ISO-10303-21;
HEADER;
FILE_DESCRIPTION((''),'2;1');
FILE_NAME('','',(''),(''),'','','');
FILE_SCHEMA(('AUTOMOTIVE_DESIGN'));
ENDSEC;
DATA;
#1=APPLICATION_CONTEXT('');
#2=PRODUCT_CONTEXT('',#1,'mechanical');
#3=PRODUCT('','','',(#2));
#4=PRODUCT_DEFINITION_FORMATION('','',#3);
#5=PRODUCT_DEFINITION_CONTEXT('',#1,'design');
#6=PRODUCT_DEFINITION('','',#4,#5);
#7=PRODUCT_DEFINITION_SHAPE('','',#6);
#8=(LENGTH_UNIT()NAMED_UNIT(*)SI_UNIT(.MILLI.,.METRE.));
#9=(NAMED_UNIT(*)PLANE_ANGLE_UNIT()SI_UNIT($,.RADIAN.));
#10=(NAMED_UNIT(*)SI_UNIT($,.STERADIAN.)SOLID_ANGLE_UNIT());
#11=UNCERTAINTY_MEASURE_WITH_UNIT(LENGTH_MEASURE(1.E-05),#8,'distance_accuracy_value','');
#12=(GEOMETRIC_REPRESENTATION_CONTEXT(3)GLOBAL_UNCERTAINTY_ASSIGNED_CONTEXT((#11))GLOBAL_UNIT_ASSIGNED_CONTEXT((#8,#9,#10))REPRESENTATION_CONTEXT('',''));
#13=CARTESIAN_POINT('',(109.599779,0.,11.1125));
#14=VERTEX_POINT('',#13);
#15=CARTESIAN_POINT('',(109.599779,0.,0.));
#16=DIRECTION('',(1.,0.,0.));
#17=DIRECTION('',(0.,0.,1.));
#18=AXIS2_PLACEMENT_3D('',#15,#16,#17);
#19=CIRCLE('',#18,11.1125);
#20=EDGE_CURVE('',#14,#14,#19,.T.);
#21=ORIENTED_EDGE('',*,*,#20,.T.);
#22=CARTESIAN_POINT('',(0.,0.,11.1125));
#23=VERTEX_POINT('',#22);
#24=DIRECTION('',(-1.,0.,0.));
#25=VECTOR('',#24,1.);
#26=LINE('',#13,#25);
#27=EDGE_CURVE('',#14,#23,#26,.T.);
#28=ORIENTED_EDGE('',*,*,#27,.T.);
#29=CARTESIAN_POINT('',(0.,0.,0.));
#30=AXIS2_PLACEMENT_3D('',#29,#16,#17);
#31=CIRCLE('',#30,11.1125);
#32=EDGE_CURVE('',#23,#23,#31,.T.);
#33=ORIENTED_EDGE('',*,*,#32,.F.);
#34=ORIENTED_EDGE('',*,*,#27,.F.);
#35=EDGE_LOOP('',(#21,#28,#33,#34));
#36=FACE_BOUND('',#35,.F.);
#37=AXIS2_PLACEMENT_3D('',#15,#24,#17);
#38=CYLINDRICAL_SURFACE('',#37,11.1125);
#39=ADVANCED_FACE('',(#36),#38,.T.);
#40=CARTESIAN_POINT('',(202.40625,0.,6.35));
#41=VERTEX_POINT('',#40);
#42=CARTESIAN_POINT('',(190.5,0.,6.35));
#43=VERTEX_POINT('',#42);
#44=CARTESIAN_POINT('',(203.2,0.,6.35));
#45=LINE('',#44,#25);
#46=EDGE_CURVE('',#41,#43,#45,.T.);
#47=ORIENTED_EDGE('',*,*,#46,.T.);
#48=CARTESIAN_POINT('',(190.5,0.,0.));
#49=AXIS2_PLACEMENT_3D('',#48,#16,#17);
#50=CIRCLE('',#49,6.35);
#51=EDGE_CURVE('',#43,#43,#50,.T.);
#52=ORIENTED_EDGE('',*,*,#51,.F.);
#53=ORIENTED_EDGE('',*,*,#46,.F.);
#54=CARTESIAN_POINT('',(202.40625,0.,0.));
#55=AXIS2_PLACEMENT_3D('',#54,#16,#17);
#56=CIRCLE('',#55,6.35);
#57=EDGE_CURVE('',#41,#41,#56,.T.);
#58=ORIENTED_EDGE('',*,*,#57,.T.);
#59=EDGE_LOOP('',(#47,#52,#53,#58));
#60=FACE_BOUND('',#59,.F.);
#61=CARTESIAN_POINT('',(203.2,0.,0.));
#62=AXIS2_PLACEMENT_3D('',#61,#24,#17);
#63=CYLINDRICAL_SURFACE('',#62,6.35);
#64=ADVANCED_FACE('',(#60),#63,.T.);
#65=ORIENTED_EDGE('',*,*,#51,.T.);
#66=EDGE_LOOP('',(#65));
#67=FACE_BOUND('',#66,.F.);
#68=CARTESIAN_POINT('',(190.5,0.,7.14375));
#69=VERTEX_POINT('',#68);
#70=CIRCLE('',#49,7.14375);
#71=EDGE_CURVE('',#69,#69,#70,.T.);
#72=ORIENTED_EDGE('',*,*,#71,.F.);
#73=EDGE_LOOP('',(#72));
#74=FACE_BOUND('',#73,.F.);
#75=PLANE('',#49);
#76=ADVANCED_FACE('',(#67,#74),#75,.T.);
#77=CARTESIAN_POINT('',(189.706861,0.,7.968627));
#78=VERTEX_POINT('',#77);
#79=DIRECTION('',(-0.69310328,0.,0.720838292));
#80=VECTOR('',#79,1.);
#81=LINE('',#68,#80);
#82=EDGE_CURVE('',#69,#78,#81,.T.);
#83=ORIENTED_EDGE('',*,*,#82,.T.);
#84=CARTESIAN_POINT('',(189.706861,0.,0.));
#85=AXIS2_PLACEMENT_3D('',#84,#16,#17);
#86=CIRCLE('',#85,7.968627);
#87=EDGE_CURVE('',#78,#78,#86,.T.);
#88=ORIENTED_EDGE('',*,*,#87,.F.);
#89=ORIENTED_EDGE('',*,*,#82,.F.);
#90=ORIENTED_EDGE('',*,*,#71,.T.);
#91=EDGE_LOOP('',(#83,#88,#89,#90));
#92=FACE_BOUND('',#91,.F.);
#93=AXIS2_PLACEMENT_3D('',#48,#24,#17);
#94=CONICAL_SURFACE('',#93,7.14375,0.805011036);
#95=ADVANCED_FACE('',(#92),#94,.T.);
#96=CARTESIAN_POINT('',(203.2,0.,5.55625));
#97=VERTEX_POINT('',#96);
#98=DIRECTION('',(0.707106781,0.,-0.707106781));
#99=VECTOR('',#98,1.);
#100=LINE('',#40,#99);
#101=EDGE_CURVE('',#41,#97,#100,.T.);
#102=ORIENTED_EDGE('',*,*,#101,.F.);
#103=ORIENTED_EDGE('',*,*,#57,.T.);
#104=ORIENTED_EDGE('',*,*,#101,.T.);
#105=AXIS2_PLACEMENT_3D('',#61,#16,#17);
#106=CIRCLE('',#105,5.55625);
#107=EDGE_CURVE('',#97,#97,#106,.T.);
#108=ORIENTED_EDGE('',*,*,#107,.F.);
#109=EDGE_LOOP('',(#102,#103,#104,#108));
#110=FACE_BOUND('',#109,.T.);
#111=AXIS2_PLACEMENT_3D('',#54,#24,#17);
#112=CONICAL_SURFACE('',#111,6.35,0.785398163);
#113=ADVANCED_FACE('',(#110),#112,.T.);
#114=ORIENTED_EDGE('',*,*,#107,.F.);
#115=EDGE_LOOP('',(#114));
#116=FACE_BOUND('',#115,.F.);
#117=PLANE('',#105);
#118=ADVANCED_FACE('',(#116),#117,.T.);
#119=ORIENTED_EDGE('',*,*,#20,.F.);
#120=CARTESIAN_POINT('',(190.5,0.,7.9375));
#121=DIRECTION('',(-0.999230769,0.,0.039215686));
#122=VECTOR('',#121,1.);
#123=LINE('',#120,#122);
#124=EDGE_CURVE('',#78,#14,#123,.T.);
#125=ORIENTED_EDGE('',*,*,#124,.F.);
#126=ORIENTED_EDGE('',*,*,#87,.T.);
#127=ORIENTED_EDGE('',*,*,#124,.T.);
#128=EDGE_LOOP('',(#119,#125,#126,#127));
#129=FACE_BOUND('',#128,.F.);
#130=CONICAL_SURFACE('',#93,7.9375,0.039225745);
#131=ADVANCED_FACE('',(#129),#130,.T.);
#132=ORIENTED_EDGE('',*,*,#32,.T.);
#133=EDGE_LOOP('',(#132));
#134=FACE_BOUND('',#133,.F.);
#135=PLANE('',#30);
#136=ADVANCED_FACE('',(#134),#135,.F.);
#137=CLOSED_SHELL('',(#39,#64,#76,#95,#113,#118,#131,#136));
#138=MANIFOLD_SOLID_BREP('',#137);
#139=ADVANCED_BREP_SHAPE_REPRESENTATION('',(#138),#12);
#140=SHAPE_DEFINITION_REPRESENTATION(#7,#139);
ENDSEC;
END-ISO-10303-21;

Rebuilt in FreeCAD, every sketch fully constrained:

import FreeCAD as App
import Part
import Sketcher

V = App.Vector
Q = App.Units.Quantity


def edges_at(feature, points):
    """Names of the edges that pass closest to the given points."""
    edges = feature.Shape.Edges
    near = lambda p: min(range(len(edges)), key=lambda i: edges[i].distToShape(Part.Vertex(*p))[0])
    return sorted({f"Edge{near(p) + 1}" for p in points})

doc = App.newDocument("Part")
params = doc.addObject("Spreadsheet::Sheet", "Params")
for row, (alias, value) in enumerate([
    ("sketch1_width", "8 in"),
    ("sketch1_width2", "0.5 in"),
    ("sketch1_height", "0.25 in"),
    ("sketch1_height2", "0.4375 in"),
    ("sketch1_height3", "0.0625 in"),
    ("revolution_angle", "360 deg"),
    ("chamfer_size", "0.03125 in"),
    ("chamfer2_size", "0.03125 in"),
], start=1):
    params.set(f"A{row}", alias)
    params.set(f"B{row}", "=" + value)
    params.setAlias(f"B{row}", alias)

body = doc.addObject("PartDesign::Body", "Body")

sketch1 = body.newObject("Sketcher::SketchObject", "Sketch")
sketch1.AttachmentSupport = (doc.getObject("XZ_Plane"), [""])
sketch1.MapMode = "FlatFace"
sketch1.addGeometry(Part.LineSegment(V(0, 11.1125, 0), V(0, 0, 0)), False)
sketch1.addGeometry(Part.LineSegment(V(0, 0, 0), V(203.2, 0, 0)), False)
sketch1.addGeometry(Part.LineSegment(V(203.2, 0, 0), V(203.2, 6.35, 0)), False)
sketch1.addGeometry(Part.LineSegment(V(203.2, 6.35, 0), V(190.5, 6.35, 0)), False)
sketch1.addGeometry(Part.LineSegment(V(190.5, 6.35, 0), V(190.5, 7.9375, 0)), False)
sketch1.addGeometry(Part.LineSegment(V(190.5, 7.9375, 0), V(109.599779, 11.1125, 0)), False)
sketch1.addGeometry(Part.LineSegment(V(109.599779, 11.1125, 0), V(0, 11.1125, 0)), False)
sketch1.addConstraint(Sketcher.Constraint("Coincident", 0, 2, 1, 1))
sketch1.addConstraint(Sketcher.Constraint("Coincident", 1, 2, 2, 1))
sketch1.addConstraint(Sketcher.Constraint("Coincident", 2, 2, 3, 1))
sketch1.addConstraint(Sketcher.Constraint("Coincident", 3, 2, 4, 1))
sketch1.addConstraint(Sketcher.Constraint("Coincident", 4, 2, 5, 1))
sketch1.addConstraint(Sketcher.Constraint("Coincident", 5, 2, 6, 1))
sketch1.addConstraint(Sketcher.Constraint("Coincident", 6, 2, 0, 1))
sketch1.addConstraint(Sketcher.Constraint("Vertical", 0))
sketch1.addConstraint(Sketcher.Constraint("Horizontal", 1))
sketch1.addConstraint(Sketcher.Constraint("Vertical", 2))
sketch1.addConstraint(Sketcher.Constraint("Horizontal", 3))
sketch1.addConstraint(Sketcher.Constraint("Vertical", 4))
sketch1.addConstraint(Sketcher.Constraint("Horizontal", 6))
sketch1.addConstraint(Sketcher.Constraint("Coincident", 0, 2, -1, 1))
sketch1.addConstraint(Sketcher.Constraint("DistanceX", 1, 1, 1, 2, Q("8 in")))
sketch1.addConstraint(Sketcher.Constraint("DistanceX", 3, 2, 3, 1, Q("0.5 in")))
sketch1.addConstraint(Sketcher.Constraint("DistanceY", 2, 1, 2, 2, Q("0.25 in")))
sketch1.addConstraint(Sketcher.Constraint("DistanceY", 0, 2, 0, 1, Q("0.4375 in")))
sketch1.addConstraint(Sketcher.Constraint("DistanceY", 4, 1, 4, 2, Q("0.0625 in")))
sketch1.addConstraint(Sketcher.Constraint("Distance", 5, Q("3.1875 in")))
sketch1.setExpression("Constraints[14]", "Params.sketch1_width")
sketch1.setExpression("Constraints[15]", "Params.sketch1_width2")
sketch1.setExpression("Constraints[16]", "Params.sketch1_height")
sketch1.setExpression("Constraints[17]", "Params.sketch1_height2")
sketch1.setExpression("Constraints[18]", "Params.sketch1_height3")
revolution = body.newObject("PartDesign::Revolution", "Revolution")
revolution.Profile = sketch1
revolution.ReferenceAxis = (sketch1, ["H_Axis"])
revolution.setExpression("Angle", "Params.revolution_angle")
doc.recompute()

chamfer = body.newObject("PartDesign::Chamfer", "Chamfer")
chamfer.Base = (revolution, edges_at(revolution, [(190.5, 0, -7.938)]))
chamfer.setExpression("Size", "Params.chamfer_size")
doc.recompute()

chamfer2 = body.newObject("PartDesign::Chamfer", "Chamfer001")
chamfer2.Base = (chamfer, edges_at(chamfer, [(203.2, 0, -6.35)]))
chamfer2.setExpression("Size", "Params.chamfer2_size")

doc.recompute()
